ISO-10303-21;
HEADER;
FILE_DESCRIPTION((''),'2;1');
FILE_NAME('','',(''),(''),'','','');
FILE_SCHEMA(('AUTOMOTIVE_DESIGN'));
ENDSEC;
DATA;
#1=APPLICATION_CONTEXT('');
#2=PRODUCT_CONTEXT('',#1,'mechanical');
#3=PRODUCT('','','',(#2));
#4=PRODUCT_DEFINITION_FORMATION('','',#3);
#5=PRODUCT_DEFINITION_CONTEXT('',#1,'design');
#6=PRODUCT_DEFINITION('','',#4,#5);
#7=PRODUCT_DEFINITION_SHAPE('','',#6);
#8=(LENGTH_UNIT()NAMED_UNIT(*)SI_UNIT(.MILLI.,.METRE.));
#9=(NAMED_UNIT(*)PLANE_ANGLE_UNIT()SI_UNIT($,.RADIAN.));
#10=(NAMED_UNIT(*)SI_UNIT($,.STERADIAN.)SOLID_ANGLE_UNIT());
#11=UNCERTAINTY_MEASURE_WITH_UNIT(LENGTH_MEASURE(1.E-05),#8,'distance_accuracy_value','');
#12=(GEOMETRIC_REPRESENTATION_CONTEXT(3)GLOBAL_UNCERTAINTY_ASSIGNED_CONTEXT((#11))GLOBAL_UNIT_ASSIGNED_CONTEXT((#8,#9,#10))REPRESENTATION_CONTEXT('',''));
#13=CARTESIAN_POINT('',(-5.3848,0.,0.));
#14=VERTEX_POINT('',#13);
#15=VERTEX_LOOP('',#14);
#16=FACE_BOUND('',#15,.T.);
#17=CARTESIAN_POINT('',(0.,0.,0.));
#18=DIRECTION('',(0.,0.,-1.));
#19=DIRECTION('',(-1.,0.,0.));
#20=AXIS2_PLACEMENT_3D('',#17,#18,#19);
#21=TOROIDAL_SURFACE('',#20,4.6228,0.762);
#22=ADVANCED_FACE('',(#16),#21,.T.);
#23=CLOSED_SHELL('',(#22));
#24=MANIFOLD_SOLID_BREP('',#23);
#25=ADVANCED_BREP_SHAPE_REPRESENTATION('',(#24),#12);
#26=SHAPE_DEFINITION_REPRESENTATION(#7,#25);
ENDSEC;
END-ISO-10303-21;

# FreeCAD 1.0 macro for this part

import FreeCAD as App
import Part
import Sketcher

V = App.Vector
Q = App.Units.Quantity

doc = App.newDocument("Part")
body = doc.addObject("PartDesign::Body", "Body")

# Sketch on XZ plane
sketch1 = body.newObject("Sketcher::SketchObject", "Sketch")
sketch1.AttachmentSupport = (doc.getObject("XZ_Plane"), [""])
sketch1.MapMode = "FlatFace"
sketch1.addGeometry(Part.Circle(V(4.6228, 0, 0), V(0, 0, 1), 0.762), False)
sketch1.addConstraint(Sketcher.Constraint("PointOnObject", 0, 3, -1))
sketch1.addConstraint(Sketcher.Constraint("Diameter", 0, Q("0.06 in")))
sketch1.addConstraint(Sketcher.Constraint("DistanceX", -1, 1, 0, 3, Q("0.182 in")))

# Sketch on XY plane
sketch2 = body.newObject("Sketcher::SketchObject", "Sketch001")
sketch2.AttachmentSupport = (doc.getObject("XY_Plane"), [""])
sketch2.MapMode = "FlatFace"
sketch2.addGeometry(Part.Circle(V(0, 0, 0), V(0, 0, 1), 4.6228), False)
sketch2.addConstraint(Sketcher.Constraint("Coincident", 0, 3, -1, 1))
sketch2.addConstraint(Sketcher.Constraint("Diameter", 0, Q("0.364 in")))
doc.recompute()

additivepipe = body.newObject("PartDesign::AdditivePipe", "AdditivePipe")
additivepipe.Profile = sketch1
additivepipe.Spine = (sketch2, ["Edge1"])

doc.recompute()
